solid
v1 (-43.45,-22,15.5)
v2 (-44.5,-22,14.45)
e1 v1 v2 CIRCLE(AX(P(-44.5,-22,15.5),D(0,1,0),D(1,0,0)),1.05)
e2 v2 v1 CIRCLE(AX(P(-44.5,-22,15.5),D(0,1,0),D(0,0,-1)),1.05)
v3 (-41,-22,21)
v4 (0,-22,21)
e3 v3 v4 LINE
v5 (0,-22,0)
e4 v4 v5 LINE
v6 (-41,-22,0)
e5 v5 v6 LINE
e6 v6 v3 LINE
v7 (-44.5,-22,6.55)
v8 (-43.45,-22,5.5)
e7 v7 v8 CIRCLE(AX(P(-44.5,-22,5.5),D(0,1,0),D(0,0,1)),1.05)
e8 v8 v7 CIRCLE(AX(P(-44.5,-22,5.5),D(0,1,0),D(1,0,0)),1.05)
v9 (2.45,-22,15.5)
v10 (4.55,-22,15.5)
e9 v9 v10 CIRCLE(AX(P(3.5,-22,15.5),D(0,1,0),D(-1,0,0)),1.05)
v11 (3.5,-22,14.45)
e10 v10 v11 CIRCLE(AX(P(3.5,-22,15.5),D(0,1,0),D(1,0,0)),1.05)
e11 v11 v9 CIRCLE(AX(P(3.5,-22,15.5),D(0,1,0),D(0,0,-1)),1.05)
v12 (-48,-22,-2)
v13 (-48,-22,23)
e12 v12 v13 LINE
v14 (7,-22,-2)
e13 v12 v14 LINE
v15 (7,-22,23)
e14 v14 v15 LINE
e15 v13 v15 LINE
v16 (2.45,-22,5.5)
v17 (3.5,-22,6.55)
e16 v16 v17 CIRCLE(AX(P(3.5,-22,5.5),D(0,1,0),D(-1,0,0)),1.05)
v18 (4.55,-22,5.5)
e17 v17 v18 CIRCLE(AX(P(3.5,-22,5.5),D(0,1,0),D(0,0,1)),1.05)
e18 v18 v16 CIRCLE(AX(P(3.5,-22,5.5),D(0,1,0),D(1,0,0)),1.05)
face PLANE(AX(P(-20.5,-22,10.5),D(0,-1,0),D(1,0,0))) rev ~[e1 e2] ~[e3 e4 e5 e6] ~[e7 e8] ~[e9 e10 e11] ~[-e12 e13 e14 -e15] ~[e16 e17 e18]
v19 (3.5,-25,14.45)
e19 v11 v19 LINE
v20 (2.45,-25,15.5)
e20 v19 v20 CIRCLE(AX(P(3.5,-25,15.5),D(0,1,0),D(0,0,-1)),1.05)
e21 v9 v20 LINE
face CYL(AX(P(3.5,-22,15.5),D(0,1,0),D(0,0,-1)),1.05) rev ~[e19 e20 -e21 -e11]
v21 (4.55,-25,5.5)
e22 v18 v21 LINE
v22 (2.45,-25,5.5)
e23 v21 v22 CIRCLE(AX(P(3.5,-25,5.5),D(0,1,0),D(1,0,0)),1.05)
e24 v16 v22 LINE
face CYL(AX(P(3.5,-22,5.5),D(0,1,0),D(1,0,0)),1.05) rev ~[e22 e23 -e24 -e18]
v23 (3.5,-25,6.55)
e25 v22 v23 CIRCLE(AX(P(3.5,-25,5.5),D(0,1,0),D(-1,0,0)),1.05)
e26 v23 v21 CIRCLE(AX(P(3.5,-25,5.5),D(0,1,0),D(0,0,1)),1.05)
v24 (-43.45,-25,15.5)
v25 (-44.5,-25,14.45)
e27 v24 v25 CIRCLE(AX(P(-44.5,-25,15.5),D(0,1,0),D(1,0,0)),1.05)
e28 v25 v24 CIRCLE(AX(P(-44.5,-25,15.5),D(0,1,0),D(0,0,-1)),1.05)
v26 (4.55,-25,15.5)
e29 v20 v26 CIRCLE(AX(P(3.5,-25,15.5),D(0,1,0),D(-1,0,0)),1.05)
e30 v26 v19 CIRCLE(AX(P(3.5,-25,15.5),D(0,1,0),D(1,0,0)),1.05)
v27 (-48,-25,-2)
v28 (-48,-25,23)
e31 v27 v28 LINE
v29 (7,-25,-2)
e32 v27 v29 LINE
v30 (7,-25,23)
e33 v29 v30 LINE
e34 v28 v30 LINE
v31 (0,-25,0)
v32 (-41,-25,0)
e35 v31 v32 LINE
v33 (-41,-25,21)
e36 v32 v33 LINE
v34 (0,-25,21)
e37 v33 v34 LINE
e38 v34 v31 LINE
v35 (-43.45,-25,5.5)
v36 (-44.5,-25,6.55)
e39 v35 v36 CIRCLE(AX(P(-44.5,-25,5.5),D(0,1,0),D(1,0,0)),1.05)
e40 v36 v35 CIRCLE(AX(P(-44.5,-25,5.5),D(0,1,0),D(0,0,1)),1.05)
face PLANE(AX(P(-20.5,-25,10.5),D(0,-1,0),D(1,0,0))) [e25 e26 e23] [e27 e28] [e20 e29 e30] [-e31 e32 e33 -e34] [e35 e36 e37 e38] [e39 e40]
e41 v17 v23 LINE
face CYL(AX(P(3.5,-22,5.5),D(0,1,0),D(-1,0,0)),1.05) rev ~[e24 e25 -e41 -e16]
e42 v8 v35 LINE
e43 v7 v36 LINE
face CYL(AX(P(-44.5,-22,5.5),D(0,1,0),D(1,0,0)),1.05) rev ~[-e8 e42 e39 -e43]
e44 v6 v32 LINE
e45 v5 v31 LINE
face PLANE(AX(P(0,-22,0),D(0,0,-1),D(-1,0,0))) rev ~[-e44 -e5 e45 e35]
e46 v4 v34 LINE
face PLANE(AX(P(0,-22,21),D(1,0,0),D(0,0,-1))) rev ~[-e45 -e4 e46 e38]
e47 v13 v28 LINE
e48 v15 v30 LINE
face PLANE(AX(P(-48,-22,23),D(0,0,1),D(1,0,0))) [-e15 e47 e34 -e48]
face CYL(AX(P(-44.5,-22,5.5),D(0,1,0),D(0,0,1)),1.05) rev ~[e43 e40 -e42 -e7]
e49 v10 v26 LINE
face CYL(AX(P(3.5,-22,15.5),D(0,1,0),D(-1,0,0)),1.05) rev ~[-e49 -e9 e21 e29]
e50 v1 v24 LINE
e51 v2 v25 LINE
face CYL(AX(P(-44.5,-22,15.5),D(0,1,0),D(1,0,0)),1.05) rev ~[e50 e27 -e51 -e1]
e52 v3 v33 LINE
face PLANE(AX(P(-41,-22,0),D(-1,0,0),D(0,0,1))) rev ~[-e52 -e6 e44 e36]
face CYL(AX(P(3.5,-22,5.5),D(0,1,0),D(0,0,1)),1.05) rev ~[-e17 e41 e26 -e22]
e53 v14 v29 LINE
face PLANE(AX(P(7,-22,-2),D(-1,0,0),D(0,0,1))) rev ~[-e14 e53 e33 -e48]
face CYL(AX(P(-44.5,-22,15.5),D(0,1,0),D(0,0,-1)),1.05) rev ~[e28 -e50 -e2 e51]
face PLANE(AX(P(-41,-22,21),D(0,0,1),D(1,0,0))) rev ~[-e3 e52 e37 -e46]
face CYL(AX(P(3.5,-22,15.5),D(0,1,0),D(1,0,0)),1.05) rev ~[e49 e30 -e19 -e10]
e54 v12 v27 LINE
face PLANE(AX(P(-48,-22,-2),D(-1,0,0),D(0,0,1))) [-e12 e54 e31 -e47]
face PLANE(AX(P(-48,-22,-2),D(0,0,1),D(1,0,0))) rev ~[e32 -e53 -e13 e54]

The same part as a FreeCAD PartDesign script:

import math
import FreeCAD as App
import Part
import Sketcher
from FreeCAD import Vector


def add_polygon(sketch, points):
    """Adds a closed chain of lines whose ends are joined by coincident constraints."""
    first, n = sketch.GeometryCount, len(points)
    for a, b in zip(points, points[1:] + points[:1]):
        sketch.addGeometry(Part.LineSegment(App.Vector(*a, 0), App.Vector(*b, 0)), False)
    for i in range(n):
        sketch.addConstraint(Sketcher.Constraint("Coincident", first + i, 2, first + (i + 1) % n, 1))

doc = App.newDocument("Part")
body = doc.addObject("PartDesign::Body", "Body")

# Sketch on XZ plane
sketch1 = doc.addObject("Sketcher::SketchObject", "Sketch")
body.addObject(sketch1)
sketch1.AttachmentSupport = (doc.XZ_Plane, [""])
sketch1.MapMode = "FlatFace"
sketch1.AttachmentOffset = App.Placement(Vector(0, 0, 22), App.Rotation())
add_polygon(sketch1, [(-48, 23), (-48, -2), (7, -2), (7, 23)])  # lines 0-3
add_polygon(sketch1, [(0, 0), (-41, 0), (-41, 21), (0, 21)])  # lines 4-7
sketch1.addGeometry(Part.ArcOfCircle(Part.Circle(Vector(3.5, 15.5, 0), Vector(0, 0, 1), 1.05), math.radians(0), math.radians(180)), False)  # 8
sketch1.addGeometry(Part.ArcOfCircle(Part.Circle(Vector(3.5, 15.5, 0), Vector(0, 0, 1), 1.05), math.radians(-90), math.radians(0)), False)  # 9
sketch1.addGeometry(Part.ArcOfCircle(Part.Circle(Vector(3.5, 15.5, 0), Vector(0, 0, 1), 1.05), math.radians(180), math.radians(270)), False)  # 10
sketch1.addGeometry(Part.ArcOfCircle(Part.Circle(Vector(3.5, 5.5, 0), Vector(0, 0, 1), 1.05), math.radians(0), math.radians(90)), False)  # 11
sketch1.addGeometry(Part.ArcOfCircle(Part.Circle(Vector(3.5, 5.5, 0), Vector(0, 0, 1), 1.05), math.radians(180), math.radians(360)), False)  # 12
sketch1.addGeometry(Part.ArcOfCircle(Part.Circle(Vector(3.5, 5.5, 0), Vector(0, 0, 1), 1.05), math.radians(90), math.radians(180)), False)  # 13
sketch1.addGeometry(Part.ArcOfCircle(Part.Circle(Vector(-44.5, 15.5, 0), Vector(0, 0, 1), 1.05), math.radians(0), math.radians(270)), False)  # 14
sketch1.addGeometry(Part.ArcOfCircle(Part.Circle(Vector(-44.5, 15.5, 0), Vector(0, 0, 1), 1.05), math.radians(-90), math.radians(0)), False)  # 15
sketch1.addGeometry(Part.ArcOfCircle(Part.Circle(Vector(-44.5, 5.5, 0), Vector(0, 0, 1), 1.05), math.radians(90), math.radians(360)), False)  # 16
sketch1.addGeometry(Part.ArcOfCircle(Part.Circle(Vector(-44.5, 5.5, 0), Vector(0, 0, 1), 1.05), math.radians(0), math.radians(90)), False)  # 17
sketch1.addConstraint(Sketcher.Constraint("Tangent", 8, 1, 9, 2))
sketch1.addConstraint(Sketcher.Constraint("Tangent", 9, 1, 10, 2))
sketch1.addConstraint(Sketcher.Constraint("Tangent", 10, 1, 8, 2))
sketch1.addConstraint(Sketcher.Constraint("Tangent", 11, 1, 12, 2))
sketch1.addConstraint(Sketcher.Constraint("Tangent", 12, 1, 13, 2))
sketch1.addConstraint(Sketcher.Constraint("Tangent", 13, 1, 11, 2))
sketch1.addConstraint(Sketcher.Constraint("Tangent", 14, 1, 15, 2))
sketch1.addConstraint(Sketcher.Constraint("Coincident", 15, 1, 14, 2))
sketch1.addConstraint(Sketcher.Constraint("Tangent", 16, 1, 17, 2))
sketch1.addConstraint(Sketcher.Constraint("Coincident", 17, 1, 16, 2))
sketch1.addConstraint(Sketcher.Constraint("Vertical", 0))
sketch1.addConstraint(Sketcher.Constraint("Horizontal", 1))
sketch1.addConstraint(Sketcher.Constraint("Vertical", 2))
sketch1.addConstraint(Sketcher.Constraint("Horizontal", 3))
sketch1.addConstraint(Sketcher.Constraint("Horizontal", 4))
sketch1.addConstraint(Sketcher.Constraint("Vertical", 5))
sketch1.addConstraint(Sketcher.Constraint("Horizontal", 6))
sketch1.addConstraint(Sketcher.Constraint("Vertical", 7))
sketch1.addConstraint(Sketcher.Constraint("Coincident", 7, 2, -1, 1))
sketch1.addConstraint(Sketcher.Constraint("Equal", 10, 11))
sketch1.addConstraint(Sketcher.Constraint("Equal", 13, 14))
sketch1.addConstraint(Sketcher.Constraint("Equal", 15, 16))
sketch1.addConstraint(Sketcher.Constraint("Horizontal", 10, 3, 14, 3))
sketch1.addConstraint(Sketcher.Constraint("Horizontal", 13, 3, 16, 3))
sketch1.addConstraint(Sketcher.Constraint("Horizontal", 15, 3, 8, 1))
sketch1.addConstraint(Sketcher.Constraint("Horizontal", 8, 1, 10, 1))
sketch1.addConstraint(Sketcher.Constraint("Horizontal", 17, 3, 11, 1))
sketch1.addConstraint(Sketcher.Constraint("Horizontal", 11, 1, 12, 1))
sketch1.addConstraint(Sketcher.Constraint("Horizontal", 10, 1, 14, 1))
sketch1.addConstraint(Sketcher.Constraint("Horizontal", 12, 1, 17, 1))
sketch1.addConstraint(Sketcher.Constraint("Vertical", 10, 3, 11, 3))
sketch1.addConstraint(Sketcher.Constraint("Vertical", 15, 3, 16, 3))
sketch1.addConstraint(Sketcher.Constraint("Vertical", 13, 3, 9, 1))
sketch1.addConstraint(Sketcher.Constraint("Vertical", 9, 1, 13, 1))
sketch1.addConstraint(Sketcher.Constraint("Vertical", 17, 3, 15, 1))
sketch1.addConstraint(Sketcher.Constraint("Vertical", 15, 1, 16, 1))
sketch1.addConstraint(Sketcher.Constraint("DistanceX", 1, 1, 1, 2, 55.0))
sketch1.addConstraint(Sketcher.Constraint("DistanceX", 4, 2, 4, 1, 41.0))
sketch1.addConstraint(Sketcher.Constraint("DistanceY", 0, 2, 0, 1, 25.0))
sketch1.addConstraint(Sketcher.Constraint("DistanceY", 5, 1, 5, 2, 21.0))
sketch1.addConstraint(Sketcher.Constraint("Radius", 8, 1.05))
sketch1.addConstraint(Sketcher.Constraint("DistanceX", 0, 2, -1, 1, 48.0))
sketch1.addConstraint(Sketcher.Constraint("DistanceY", 0, 2, -1, 1, 2.0))
sketch1.addConstraint(Sketcher.Constraint("DistanceY", 11, 3, 8, 3, 10.0))
sketch1.addConstraint(Sketcher.Constraint("DistanceX", 14, 3, 8, 3, 48.0))
sketch1.addConstraint(Sketcher.Constraint("DistanceX", -1, 1, 8, 3, 3.5))
sketch1.addConstraint(Sketcher.Constraint("DistanceY", -1, 1, 8, 3, 15.5))
pad1 = doc.addObject("PartDesign::Pad", "Pad")
body.addObject(pad1)
pad1.Profile = sketch1
pad1.Length = 3

doc.recompute()
